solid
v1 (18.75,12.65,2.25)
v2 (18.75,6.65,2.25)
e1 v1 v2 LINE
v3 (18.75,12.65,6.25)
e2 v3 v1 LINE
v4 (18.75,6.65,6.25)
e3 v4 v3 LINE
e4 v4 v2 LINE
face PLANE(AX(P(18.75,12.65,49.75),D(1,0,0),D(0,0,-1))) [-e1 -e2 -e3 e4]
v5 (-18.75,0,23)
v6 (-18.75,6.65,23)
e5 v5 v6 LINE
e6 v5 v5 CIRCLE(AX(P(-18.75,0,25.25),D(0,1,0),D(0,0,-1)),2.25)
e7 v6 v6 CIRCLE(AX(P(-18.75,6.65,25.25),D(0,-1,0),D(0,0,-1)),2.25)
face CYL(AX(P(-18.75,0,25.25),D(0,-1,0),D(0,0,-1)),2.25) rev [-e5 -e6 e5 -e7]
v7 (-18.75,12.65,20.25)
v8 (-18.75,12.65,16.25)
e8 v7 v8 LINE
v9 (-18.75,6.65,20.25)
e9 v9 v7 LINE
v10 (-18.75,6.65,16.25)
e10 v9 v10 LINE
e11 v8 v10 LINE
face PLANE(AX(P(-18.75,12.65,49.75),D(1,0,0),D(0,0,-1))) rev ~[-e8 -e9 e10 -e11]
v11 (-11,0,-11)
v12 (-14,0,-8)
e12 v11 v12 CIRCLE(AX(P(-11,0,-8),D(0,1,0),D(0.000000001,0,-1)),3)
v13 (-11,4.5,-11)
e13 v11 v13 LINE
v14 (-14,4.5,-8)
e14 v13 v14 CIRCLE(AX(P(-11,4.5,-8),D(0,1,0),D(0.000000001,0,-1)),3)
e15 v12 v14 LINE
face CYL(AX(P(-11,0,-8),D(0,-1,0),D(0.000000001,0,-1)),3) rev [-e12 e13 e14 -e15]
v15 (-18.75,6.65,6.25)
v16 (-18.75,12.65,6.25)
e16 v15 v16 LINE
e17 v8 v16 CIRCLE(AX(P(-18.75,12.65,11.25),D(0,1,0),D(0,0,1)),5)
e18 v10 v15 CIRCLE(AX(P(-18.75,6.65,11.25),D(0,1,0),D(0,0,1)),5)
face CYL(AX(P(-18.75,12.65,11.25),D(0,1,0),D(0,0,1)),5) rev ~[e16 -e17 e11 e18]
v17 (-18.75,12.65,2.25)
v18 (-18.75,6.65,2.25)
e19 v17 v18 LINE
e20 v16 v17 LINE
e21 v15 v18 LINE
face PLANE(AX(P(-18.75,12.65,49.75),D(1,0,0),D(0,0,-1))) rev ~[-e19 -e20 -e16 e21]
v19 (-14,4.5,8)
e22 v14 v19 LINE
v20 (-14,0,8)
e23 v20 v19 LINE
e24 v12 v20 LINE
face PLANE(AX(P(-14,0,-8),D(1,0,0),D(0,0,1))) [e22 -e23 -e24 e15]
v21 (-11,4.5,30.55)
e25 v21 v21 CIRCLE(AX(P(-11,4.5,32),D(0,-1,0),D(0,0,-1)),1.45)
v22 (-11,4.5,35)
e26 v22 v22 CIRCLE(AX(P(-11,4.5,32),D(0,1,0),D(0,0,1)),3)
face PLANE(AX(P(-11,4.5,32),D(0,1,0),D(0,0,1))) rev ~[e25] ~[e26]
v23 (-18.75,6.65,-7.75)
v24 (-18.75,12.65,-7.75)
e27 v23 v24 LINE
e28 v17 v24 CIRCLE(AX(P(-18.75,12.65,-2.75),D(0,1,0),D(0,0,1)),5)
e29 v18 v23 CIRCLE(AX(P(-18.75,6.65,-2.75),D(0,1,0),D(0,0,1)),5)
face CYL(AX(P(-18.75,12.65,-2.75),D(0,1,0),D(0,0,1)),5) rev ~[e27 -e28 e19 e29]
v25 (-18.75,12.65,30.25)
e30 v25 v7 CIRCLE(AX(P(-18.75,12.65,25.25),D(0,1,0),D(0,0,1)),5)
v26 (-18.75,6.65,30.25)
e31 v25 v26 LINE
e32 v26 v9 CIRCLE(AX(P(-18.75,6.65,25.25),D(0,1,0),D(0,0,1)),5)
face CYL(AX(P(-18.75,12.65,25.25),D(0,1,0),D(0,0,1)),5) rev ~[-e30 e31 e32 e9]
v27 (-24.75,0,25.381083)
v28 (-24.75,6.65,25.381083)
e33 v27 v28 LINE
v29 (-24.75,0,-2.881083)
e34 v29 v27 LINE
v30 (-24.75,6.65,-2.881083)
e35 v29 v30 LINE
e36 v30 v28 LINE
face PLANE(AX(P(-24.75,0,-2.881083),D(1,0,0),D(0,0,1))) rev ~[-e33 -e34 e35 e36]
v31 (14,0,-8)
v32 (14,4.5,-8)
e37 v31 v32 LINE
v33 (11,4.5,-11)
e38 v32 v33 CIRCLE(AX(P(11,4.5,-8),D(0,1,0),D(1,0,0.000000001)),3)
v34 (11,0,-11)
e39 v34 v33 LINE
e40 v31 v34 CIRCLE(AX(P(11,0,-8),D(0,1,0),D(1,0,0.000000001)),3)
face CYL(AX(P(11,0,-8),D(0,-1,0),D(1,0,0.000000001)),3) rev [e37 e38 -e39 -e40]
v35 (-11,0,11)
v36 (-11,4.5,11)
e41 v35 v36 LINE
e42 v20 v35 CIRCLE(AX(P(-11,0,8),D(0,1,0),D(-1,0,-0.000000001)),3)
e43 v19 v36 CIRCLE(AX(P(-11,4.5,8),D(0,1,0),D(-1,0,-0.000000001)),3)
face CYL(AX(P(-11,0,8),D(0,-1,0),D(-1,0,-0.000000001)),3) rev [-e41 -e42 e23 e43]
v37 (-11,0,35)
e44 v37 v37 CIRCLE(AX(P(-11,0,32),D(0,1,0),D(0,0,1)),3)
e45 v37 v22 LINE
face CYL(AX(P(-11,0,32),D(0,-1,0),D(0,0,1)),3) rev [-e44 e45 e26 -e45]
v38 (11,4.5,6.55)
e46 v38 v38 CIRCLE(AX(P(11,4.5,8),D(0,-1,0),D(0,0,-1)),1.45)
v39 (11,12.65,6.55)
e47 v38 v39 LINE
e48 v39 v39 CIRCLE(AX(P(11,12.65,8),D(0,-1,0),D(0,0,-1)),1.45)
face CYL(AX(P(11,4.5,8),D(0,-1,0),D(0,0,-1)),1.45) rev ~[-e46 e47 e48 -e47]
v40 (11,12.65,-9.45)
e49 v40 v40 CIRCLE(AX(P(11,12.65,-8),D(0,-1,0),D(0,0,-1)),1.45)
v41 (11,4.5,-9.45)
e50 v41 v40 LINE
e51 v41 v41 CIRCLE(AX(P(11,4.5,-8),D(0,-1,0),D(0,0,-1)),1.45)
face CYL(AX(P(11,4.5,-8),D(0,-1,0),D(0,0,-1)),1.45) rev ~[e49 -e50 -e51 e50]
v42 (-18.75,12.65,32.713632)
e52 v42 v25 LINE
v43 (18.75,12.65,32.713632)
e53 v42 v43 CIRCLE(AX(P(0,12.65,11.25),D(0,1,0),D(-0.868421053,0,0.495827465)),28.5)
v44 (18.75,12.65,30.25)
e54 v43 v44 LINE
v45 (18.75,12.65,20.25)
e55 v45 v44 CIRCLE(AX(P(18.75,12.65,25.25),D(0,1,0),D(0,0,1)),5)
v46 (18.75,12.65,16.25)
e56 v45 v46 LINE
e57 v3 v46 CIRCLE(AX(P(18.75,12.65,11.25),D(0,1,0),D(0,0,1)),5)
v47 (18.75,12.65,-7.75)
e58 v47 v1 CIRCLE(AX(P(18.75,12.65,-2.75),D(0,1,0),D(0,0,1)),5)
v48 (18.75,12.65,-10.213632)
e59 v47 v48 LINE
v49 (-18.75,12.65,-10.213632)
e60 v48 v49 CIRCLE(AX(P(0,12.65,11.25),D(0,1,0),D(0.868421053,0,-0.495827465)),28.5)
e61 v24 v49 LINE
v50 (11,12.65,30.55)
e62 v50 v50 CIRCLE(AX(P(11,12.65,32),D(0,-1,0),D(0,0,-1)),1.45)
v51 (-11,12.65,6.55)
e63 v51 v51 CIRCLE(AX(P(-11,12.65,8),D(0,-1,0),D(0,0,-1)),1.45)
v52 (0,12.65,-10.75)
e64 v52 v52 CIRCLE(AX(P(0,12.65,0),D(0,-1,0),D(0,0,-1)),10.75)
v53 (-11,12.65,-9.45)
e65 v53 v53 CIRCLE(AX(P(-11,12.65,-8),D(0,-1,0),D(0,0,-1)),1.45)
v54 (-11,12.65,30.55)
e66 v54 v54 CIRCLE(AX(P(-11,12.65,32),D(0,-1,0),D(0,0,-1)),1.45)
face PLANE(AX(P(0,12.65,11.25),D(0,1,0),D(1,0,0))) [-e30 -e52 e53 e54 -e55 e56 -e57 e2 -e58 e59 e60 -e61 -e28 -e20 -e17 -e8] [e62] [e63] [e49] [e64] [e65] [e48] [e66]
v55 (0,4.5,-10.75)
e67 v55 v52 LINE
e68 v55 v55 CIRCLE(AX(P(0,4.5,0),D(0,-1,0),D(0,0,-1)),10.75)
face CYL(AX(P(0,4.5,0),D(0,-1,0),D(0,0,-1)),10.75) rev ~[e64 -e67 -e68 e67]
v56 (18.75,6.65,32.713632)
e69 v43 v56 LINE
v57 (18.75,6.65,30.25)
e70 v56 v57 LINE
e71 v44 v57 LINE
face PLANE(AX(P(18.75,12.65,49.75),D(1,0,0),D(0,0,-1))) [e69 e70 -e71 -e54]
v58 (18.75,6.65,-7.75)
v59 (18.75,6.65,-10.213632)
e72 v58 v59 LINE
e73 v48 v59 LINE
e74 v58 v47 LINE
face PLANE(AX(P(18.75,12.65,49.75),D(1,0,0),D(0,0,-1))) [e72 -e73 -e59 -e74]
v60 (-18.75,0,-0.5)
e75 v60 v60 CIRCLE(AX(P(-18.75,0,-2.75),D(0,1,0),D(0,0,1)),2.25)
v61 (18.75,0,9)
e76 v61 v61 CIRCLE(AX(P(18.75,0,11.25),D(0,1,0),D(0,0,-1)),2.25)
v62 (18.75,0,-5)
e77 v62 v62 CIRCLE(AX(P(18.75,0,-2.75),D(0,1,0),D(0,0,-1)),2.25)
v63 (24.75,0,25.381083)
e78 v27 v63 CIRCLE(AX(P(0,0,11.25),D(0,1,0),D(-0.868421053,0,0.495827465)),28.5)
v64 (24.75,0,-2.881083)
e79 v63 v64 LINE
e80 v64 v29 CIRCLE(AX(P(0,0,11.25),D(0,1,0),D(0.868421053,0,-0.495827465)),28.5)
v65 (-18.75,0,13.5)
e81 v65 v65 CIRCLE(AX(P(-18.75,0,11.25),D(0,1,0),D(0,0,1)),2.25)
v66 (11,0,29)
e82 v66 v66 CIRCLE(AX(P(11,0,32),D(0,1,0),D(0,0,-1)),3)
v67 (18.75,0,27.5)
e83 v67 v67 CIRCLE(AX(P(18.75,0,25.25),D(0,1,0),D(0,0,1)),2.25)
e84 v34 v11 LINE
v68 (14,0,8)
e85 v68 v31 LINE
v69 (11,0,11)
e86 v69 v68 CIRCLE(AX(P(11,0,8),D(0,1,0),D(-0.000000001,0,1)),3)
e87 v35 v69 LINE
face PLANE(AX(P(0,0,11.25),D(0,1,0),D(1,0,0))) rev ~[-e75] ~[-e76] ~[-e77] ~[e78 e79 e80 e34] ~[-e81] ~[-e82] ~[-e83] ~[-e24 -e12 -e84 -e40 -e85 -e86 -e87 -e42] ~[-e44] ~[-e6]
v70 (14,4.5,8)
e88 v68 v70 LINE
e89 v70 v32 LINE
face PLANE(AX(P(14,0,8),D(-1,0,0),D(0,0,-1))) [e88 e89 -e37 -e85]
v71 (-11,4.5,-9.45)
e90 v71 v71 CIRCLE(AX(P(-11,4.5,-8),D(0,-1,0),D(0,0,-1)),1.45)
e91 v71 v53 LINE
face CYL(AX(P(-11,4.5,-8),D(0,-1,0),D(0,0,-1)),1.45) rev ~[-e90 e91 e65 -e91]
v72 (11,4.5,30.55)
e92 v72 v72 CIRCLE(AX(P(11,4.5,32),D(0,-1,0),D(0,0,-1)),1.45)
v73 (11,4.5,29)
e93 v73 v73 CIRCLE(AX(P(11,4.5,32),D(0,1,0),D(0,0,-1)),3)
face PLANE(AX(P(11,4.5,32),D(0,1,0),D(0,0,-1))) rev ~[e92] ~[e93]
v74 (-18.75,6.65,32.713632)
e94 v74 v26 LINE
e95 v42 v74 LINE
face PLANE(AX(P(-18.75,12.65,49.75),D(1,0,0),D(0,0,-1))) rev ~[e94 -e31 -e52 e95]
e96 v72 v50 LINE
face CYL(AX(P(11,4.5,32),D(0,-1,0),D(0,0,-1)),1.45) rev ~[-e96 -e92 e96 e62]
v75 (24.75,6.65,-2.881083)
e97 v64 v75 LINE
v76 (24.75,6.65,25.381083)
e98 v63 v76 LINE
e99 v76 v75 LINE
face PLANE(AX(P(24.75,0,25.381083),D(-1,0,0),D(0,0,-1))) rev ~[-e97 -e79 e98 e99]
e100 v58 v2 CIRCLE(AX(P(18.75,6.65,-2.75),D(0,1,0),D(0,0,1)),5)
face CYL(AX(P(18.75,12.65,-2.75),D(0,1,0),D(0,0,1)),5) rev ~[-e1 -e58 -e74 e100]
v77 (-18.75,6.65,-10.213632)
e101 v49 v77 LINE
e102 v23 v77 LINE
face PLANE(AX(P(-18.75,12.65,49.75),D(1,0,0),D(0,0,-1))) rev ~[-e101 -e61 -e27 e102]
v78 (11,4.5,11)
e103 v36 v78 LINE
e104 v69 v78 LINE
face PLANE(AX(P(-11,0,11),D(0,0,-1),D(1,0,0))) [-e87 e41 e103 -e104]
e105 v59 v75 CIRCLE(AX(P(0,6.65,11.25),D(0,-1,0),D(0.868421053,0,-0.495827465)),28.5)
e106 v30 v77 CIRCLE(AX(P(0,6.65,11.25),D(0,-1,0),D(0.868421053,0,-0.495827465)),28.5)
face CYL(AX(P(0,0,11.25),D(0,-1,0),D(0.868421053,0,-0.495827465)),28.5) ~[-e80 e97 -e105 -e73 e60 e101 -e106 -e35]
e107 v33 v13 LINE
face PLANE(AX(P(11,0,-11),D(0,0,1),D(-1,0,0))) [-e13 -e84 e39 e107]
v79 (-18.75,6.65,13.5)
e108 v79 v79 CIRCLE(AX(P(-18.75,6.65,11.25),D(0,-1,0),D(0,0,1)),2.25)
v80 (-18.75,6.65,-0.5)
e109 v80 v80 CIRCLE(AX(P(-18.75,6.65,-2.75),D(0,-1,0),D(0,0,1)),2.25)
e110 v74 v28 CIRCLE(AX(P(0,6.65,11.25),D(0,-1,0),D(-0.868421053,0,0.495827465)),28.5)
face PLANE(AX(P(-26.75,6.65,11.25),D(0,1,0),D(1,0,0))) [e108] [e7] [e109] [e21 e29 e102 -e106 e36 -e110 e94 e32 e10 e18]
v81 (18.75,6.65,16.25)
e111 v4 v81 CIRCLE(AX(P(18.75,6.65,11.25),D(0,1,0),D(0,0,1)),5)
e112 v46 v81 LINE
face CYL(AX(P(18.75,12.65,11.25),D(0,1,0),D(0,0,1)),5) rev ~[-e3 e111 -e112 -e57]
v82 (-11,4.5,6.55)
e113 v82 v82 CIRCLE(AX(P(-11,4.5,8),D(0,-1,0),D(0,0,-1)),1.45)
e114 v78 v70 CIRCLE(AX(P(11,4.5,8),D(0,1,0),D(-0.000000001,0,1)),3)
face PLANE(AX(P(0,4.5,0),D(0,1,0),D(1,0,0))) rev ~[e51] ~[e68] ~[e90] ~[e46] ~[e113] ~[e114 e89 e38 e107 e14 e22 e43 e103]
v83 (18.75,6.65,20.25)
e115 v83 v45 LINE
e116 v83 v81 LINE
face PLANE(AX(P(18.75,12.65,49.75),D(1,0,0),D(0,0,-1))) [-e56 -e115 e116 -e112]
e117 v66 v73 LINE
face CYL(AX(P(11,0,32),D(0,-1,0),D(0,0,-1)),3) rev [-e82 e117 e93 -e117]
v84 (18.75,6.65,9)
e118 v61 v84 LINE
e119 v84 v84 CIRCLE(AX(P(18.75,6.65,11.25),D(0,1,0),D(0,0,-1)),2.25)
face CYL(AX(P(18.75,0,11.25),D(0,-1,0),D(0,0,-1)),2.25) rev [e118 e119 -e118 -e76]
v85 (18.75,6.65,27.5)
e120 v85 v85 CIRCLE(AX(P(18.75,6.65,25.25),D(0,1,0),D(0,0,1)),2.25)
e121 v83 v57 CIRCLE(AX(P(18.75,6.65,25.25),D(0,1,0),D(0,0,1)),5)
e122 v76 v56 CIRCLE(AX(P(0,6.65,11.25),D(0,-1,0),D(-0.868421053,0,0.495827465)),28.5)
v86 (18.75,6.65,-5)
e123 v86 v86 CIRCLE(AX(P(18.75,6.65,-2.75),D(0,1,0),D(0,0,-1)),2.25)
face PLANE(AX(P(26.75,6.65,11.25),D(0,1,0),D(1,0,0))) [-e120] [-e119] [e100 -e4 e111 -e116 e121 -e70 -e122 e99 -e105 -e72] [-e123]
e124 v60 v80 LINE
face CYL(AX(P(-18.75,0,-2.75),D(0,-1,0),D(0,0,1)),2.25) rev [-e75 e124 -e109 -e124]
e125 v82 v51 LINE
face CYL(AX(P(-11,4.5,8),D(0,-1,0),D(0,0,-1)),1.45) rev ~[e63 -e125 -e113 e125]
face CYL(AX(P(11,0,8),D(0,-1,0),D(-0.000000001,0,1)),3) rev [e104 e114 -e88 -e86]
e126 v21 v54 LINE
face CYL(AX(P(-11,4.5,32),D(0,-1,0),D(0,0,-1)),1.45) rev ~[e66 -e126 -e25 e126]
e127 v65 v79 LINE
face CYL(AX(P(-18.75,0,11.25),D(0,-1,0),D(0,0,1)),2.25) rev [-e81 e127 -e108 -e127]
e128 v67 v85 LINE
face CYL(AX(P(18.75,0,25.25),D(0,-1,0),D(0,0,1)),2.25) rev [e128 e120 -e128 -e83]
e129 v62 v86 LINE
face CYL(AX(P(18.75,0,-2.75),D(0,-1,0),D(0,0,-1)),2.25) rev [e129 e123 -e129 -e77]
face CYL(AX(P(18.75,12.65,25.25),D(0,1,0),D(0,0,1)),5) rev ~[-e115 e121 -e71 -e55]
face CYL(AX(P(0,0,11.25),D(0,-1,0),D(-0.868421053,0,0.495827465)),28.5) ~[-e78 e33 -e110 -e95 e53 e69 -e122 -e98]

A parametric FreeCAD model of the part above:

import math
import FreeCAD as App
import Part
import Sketcher
Q = App.Units.Quantity

doc = App.newDocument("Part")
body = doc.addObject("PartDesign::Body", "Body")

# Sketch on XZ plane
sketch1 = body.newObject("Sketcher::SketchObject", "Sketch")
sketch1.AttachmentSupport = (doc.getObject("XZ_Plane"), [""])
sketch1.MapMode = "FlatFace"
sketch1.addGeometry([
    Part.LineSegment(App.Vector(-24.8, -2.9, 0), App.Vector(-24.8, 25.4, 0)),  # 0
    Part.ArcOfCircle(Part.Circle(App.Vector(0, 11.2, 0), App.Vector(0, 0, 1), 28.5), math.radians(30), math.radians(150)),  # 1
    Part.LineSegment(App.Vector(24.8, 25.4, 0), App.Vector(24.8, -2.9, 0)),  # 2
    Part.ArcOfCircle(Part.Circle(App.Vector(0, 11.2, 0), App.Vector(0, 0, 1), 28.5), math.radians(-150), math.radians(-30)),  # 3
    Part.Circle(App.Vector(-18.8, 25.2, 0), App.Vector(0, 0, 1), 2.2),  # 4
    Part.Circle(App.Vector(18.8, 25.2, 0), App.Vector(0, 0, 1), 2.2),  # 5
    Part.Circle(App.Vector(-18.8, 11.2, 0), App.Vector(0, 0, 1), 2.2),  # 6
    Part.Circle(App.Vector(-18.8, -2.8, 0), App.Vector(0, 0, 1), 2.2),  # 7
    Part.Circle(App.Vector(18.8, 11.2, 0), App.Vector(0, 0, 1), 2.2),  # 8
    Part.Circle(App.Vector(18.8, -2.8, 0), App.Vector(0, 0, 1), 2.2),  # 9
], False)
sketch1.addConstraint([
    Sketcher.Constraint("Coincident", 0, 2, 1, 2),
    Sketcher.Constraint("Coincident", 1, 1, 2, 1),
    Sketcher.Constraint("Coincident", 2, 2, 3, 2),
    Sketcher.Constraint("Coincident", 3, 1, 0, 1),
    Sketcher.Constraint("Vertical", 0),
    Sketcher.Constraint("Vertical", 2),
    Sketcher.Constraint("Coincident", 3, 3, 1, 3),
    Sketcher.Constraint("Equal", 1, 3),
    Sketcher.Constraint("Equal", 4, 5),
    Sketcher.Constraint("Equal", 5, 6),
    Sketcher.Constraint("Equal", 6, 7),
    Sketcher.Constraint("Equal", 7, 8),
    Sketcher.Constraint("Equal", 8, 9),
    Sketcher.Constraint("Symmetric", 4, 3, 5, 3, -2),
    Sketcher.Constraint("Symmetric", 6, 3, 8, 3, -2),
    Sketcher.Constraint("Symmetric", 7, 3, 9, 3, -2),
    Sketcher.Constraint("Symmetric", 0, 2, 1, 1, -2),
    Sketcher.Constraint("Horizontal", 3, 3, 6, 3),
    Sketcher.Constraint("Vertical", 4, 3, 6, 3),
    Sketcher.Constraint("Vertical", 6, 3, 7, 3),
    Sketcher.Constraint("Diameter", 4, Q("4.5 mm")),
    Sketcher.Constraint("Radius", 1, Q("28.5 mm")),
    Sketcher.Constraint("DistanceY", 1, 3, 4, 3, Q("14 mm")),
    Sketcher.Constraint("DistanceY", 7, 3, 6, 3, Q("14 mm")),
    Sketcher.Constraint("DistanceX", 0, 2, 4, 3, Q("6 mm")),
    Sketcher.Constraint("DistanceX", 4, 3, 5, 3, Q("37.5 mm")),
    Sketcher.Constraint("DistanceY", -1, 1, 1, 3, Q("11.25 mm")),
])
pad1 = body.newObject("PartDesign::Pad", "Pad")
pad1.Profile = sketch1
pad1.Length = 12.65
pad1.Reversed = True

# Sketch on XZ plane
sketch2 = body.newObject("Sketcher::SketchObject", "Sketch001")
sketch2.AttachmentSupport = (doc.getObject("XZ_Plane"), [""])
sketch2.MapMode = "FlatFace"
sketch2.addGeometry([
    Part.Circle(App.Vector(-11, 32, 0), App.Vector(0, 0, 1), 3),  # 0
    Part.Circle(App.Vector(11, 32, 0), App.Vector(0, 0, 1), 3),  # 1
    Part.LineSegment(App.Vector(-14, -8, 0), App.Vector(-14, 8, 0)),  # 2
    Part.ArcOfCircle(Part.Circle(App.Vector(-11, 8, 0), App.Vector(0, 0, 1), 3), math.radians(90), math.radians(180)),  # 3
    Part.LineSegment(App.Vector(-11, 11, 0), App.Vector(11, 11, 0)),  # 4
    Part.ArcOfCircle(Part.Circle(App.Vector(11, 8, 0), App.Vector(0, 0, 1), 3), math.radians(0), math.radians(90)),  # 5
    Part.LineSegment(App.Vector(14, 8, 0), App.Vector(14, -8, 0)),  # 6
    Part.ArcOfCircle(Part.Circle(App.Vector(11, -8, 0), App.Vector(0, 0, 1), 3), math.radians(-90), math.radians(0)),  # 7
    Part.LineSegment(App.Vector(11, -11, 0), App.Vector(-11, -11, 0)),  # 8
    Part.ArcOfCircle(Part.Circle(App.Vector(-11, -8, 0), App.Vector(0, 0, 1), 3), math.radians(180), math.radians(270)),  # 9
], False)
sketch2.addConstraint([
    Sketcher.Constraint("Tangent", 2, 2, 3, 2),
    Sketcher.Constraint("Tangent", 3, 1, 4, 1),
    Sketcher.Constraint("Tangent", 4, 2, 5, 2),
    Sketcher.Constraint("Tangent", 5, 1, 6, 1),
    Sketcher.Constraint("Tangent", 6, 2, 7, 2),
    Sketcher.Constraint("Tangent", 7, 1, 8, 1),
    Sketcher.Constraint("Tangent", 8, 2, 9, 2),
    Sketcher.Constraint("Tangent", 9, 1, 2, 1),
    Sketcher.Constraint("Vertical", 2),
    Sketcher.Constraint("Horizontal", 4),
    Sketcher.Constraint("Vertical", 6),
    Sketcher.Constraint("Horizontal", 8),
    Sketcher.Constraint("Equal", 0, 1),
    Sketcher.Constraint("Equal", 1, 3),
    Sketcher.Constraint("Equal", 3, 5),
    Sketcher.Constraint("Equal", 5, 7),
    Sketcher.Constraint("Equal", 7, 9),
    Sketcher.Constraint("Symmetric", 3, 3, 7, 3, -1, 1),
    Sketcher.Constraint("Symmetric", 0, 3, 1, 3, -2),
    Sketcher.Constraint("Vertical", 0, 3, 3, 3),
    Sketcher.Constraint("Diameter", 0, Q("6 mm")),
    Sketcher.Constraint("DistanceX", 4, 1, 4, 2, Q("22 mm")),
    Sketcher.Constraint("DistanceY", 2, 1, 2, 2, Q("16 mm")),
    Sketcher.Constraint("DistanceY", -1, 1, 0, 3, Q("32 mm")),
])
pocket1 = body.newObject("PartDesign::Pocket", "Pocket")
pocket1.Profile = sketch2
pocket1.Length = 4.5

# Sketch on XZ plane
sketch3 = body.newObject("Sketcher::SketchObject", "Sketch002")
sketch3.AttachmentSupport = (doc.getObject("XZ_Plane"), [""])
sketch3.MapMode = "FlatFace"
sketch3.AttachmentOffset = App.Placement(App.Vector(0, 0, -4.5), App.Rotation())
sketch3.addGeometry([
    Part.Circle(App.Vector(0, 0, 0), App.Vector(0, 0, 1), 10.8),  # 0
    Part.Circle(App.Vector(-11, 8, 0), App.Vector(0, 0, 1), 1.4),  # 1
    Part.Circle(App.Vector(-11, -8, 0), App.Vector(0, 0, 1), 1.4),  # 2
    Part.Circle(App.Vector(11, -8, 0), App.Vector(0, 0, 1), 1.4),  # 3
    Part.Circle(App.Vector(11, 8, 0), App.Vector(0, 0, 1), 1.4),  # 4
    Part.Circle(App.Vector(-11, 32, 0), App.Vector(0, 0, 1), 1.4),  # 5
    Part.Circle(App.Vector(11, 32, 0), App.Vector(0, 0, 1), 1.4),  # 6
], False)
sketch3.addConstraint([
    Sketcher.Constraint("Coincident", 0, 3, -1, 1),
    Sketcher.Constraint("Equal", 1, 2),
    Sketcher.Constraint("Equal", 2, 3),
    Sketcher.Constraint("Equal", 3, 4),
    Sketcher.Constraint("Equal", 4, 5),
    Sketcher.Constraint("Equal", 5, 6),
    Sketcher.Constraint("Symmetric", 1, 3, 3, 3, -1, 1),
    Sketcher.Constraint("Symmetric", 2, 3, 4, 3, -1, 1),
    Sketcher.Constraint("Symmetric", 2, 3, 3, 3, -2),
    Sketcher.Constraint("Symmetric", 5, 3, 6, 3, -2),
    Sketcher.Constraint("Vertical", 2, 3, 5, 3),
    Sketcher.Constraint("Diameter", 0, Q("21.5 mm")),
    Sketcher.Constraint("Diameter", 1, Q("2.9 mm")),
    Sketcher.Constraint("DistanceX", 1, 3, -1, 1, Q("11 mm")),
    Sketcher.Constraint("DistanceY", -1, 1, 1, 3, Q("8 mm")),
    Sketcher.Constraint("DistanceY", -1, 1, 5, 3, Q("32 mm")),
])
pocket2 = body.newObject("PartDesign::Pocket", "Pocket001")
pocket2.Profile = sketch3
pocket2.Type = "ThroughAll"

# Sketch on XZ plane
sketch4 = body.newObject("Sketcher::SketchObject", "Sketch003")
sketch4.AttachmentSupport = (doc.getObject("XZ_Plane"), [""])
sketch4.MapMode = "FlatFace"
sketch4.AttachmentOffset = App.Placement(App.Vector(0, 0, -12.65), App.Rotation())
sketch4.addGeometry([
    Part.Circle(App.Vector(-19, -3, 0), App.Vector(0, 0, 1), 5),  # 0
    Part.Circle(App.Vector(-19, 11, 0), App.Vector(0, 0, 1), 5),  # 1
    Part.Circle(App.Vector(-19, 25, 0), App.Vector(0, 0, 1), 5),  # 2
    Part.Circle(App.Vector(19, 25, 0), App.Vector(0, 0, 1), 5),  # 3
    Part.Circle(App.Vector(19, 11, 0), App.Vector(0, 0, 1), 5),  # 4
    Part.Circle(App.Vector(19, -3, 0), App.Vector(0, 0, 1), 5),  # 5
], False)
sketch4.addConstraint([
    Sketcher.Constraint("Equal", 0, 1),
    Sketcher.Constraint("Equal", 1, 2),
    Sketcher.Constraint("Equal", 2, 3),
    Sketcher.Constraint("Equal", 3, 4),
    Sketcher.Constraint("Equal", 4, 5),
    Sketcher.Constraint("Symmetric", 2, 3, 3, 3, -2),
    Sketcher.Constraint("Symmetric", 1, 3, 4, 3, -2),
    Sketcher.Constraint("Symmetric", 0, 3, 5, 3, -2),
    Sketcher.Constraint("Vertical", 0, 3, 1, 3),
    Sketcher.Constraint("Vertical", 1, 3, 2, 3),
    Sketcher.Constraint("Diameter", 0, Q("10 mm")),
    Sketcher.Constraint("DistanceY", 0, 3, 1, 3, Q("14 mm")),
    Sketcher.Constraint("DistanceY", 1, 3, 2, 3, Q("14 mm")),
    Sketcher.Constraint("DistanceX", 2, 3, 3, 3, Q("37.5 mm")),
    Sketcher.Constraint("DistanceY", 0, 3, -1, 1, Q("2.75 mm")),
])
pocket3 = body.newObject("PartDesign::Pocket", "Pocket002")
pocket3.Profile = sketch4
pocket3.Length = 6
pocket3.Reversed = True

# Sketch on XZ plane
sketch5 = body.newObject("Sketcher::SketchObject", "Sketch004")
sketch5.AttachmentSupport = (doc.getObject("XZ_Plane"), [""])
sketch5.MapMode = "FlatFace"
sketch5.AttachmentOffset = App.Placement(App.Vector(0, 0, -12.65), App.Rotation())
sketch5.addGeometry([
    Part.LineSegment(App.Vector(-35, -27, 0), App.Vector(-35, 50, 0)),  # 0
    Part.LineSegment(App.Vector(-35, 50, 0), App.Vector(-19, 50, 0)),  # 1
    Part.LineSegment(App.Vector(-19, 50, 0), App.Vector(-19, -27, 0)),  # 2
    Part.LineSegment(App.Vector(-19, -27, 0), App.Vector(-35, -27, 0)),  # 3
    Part.LineSegment(App.Vector(19, -27, 0), App.Vector(19, 50, 0)),  # 4
    Part.LineSegment(App.Vector(19, 50, 0), App.Vector(35, 50, 0)),  # 5
    Part.LineSegment(App.Vector(35, 50, 0), App.Vector(35, -27, 0)),  # 6
    Part.LineSegment(App.Vector(35, -27, 0), App.Vector(19, -27, 0)),  # 7
], False)
sketch5.addConstraint([
    Sketcher.Constraint("Coincident", 0, 2, 1, 1),
    Sketcher.Constraint("Coincident", 1, 2, 2, 1),
    Sketcher.Constraint("Coincident", 2, 2, 3, 1),
    Sketcher.Constraint("Coincident", 3, 2, 0, 1),
    Sketcher.Constraint("Coincident", 4, 2, 5, 1),
    Sketcher.Constraint("Coincident", 5, 2, 6, 1),
    Sketcher.Constraint("Coincident", 6, 2, 7, 1),
    Sketcher.Constraint("Coincident", 7, 2, 4, 1),
    Sketcher.Constraint("Vertical", 0),
    Sketcher.Constraint("Horizontal", 1),
    Sketcher.Constraint("Vertical", 2),
    Sketcher.Constraint("Horizontal", 3),
    Sketcher.Constraint("Vertical", 4),
    Sketcher.Constraint("Horizontal", 5),
    Sketcher.Constraint("Vertical", 6),
    Sketcher.Constraint("Horizontal", 7),
    Sketcher.Constraint("Symmetric", 1, 2, 4, 2, -2),
    Sketcher.Constraint("Symmetric", 3, 2, 6, 2, -2),
    Sketcher.Constraint("DistanceX", 1, 1, 1, 2, Q("16 mm")),
    Sketcher.Constraint("DistanceY", 0, 1, 0, 2, Q("77 mm")),
    Sketcher.Constraint("DistanceX", 1, 2, 4, 2, Q("37.5 mm")),
    Sketcher.Constraint("DistanceY", -1, 1, 0, 2, Q("49.75 mm")),
])
pocket4 = body.newObject("PartDesign::Pocket", "Pocket003")
pocket4.Profile = sketch5
pocket4.Length = 6
pocket4.Reversed = True

doc.recompute()
